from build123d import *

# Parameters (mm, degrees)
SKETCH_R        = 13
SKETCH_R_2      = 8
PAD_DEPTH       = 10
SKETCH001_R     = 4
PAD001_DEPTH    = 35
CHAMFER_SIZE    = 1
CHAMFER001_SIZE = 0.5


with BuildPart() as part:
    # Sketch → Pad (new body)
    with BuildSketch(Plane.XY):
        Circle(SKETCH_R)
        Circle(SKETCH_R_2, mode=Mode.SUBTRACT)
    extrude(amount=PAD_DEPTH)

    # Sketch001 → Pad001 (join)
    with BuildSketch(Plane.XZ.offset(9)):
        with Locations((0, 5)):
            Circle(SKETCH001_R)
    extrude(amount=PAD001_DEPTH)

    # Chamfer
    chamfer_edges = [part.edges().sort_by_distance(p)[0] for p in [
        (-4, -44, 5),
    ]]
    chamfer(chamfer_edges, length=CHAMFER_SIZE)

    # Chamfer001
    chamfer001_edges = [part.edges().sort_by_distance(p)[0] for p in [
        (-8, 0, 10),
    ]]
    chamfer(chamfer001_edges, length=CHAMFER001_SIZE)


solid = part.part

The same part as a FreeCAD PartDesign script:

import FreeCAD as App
import Part
import Sketcher

V = App.Vector
Q = App.Units.Quantity


def edges_at(feature, points):
    """Names of the edges that pass closest to the given points."""
    edges = feature.Shape.Edges
    near = lambda p: min(range(len(edges)), key=lambda i: edges[i].distToShape(Part.Vertex(*p))[0])
    return sorted({f"Edge{near(p) + 1}" for p in points})

doc = App.newDocument("Part")
body = doc.addObject("PartDesign::Body", "Body")

# Sketch on XY plane
sketch1 = doc.addObject("Sketcher::SketchObject", "Sketch")
body.addObject(sketch1)
sketch1.AttachmentSupport = (doc.XY_Plane, [""])
sketch1.MapMode = "FlatFace"
sketch1.addGeometry([
    Part.Circle(V(0, 0, 0), V(0, 0, 1), 13),
    Part.Circle(V(0, 0, 0), V(0, 0, 1), 8),
], False)
sketch1.addConstraint([
    Sketcher.Constraint("Coincident", 0, 3, -1, 1),
    Sketcher.Constraint("Coincident", 1, 3, -1, 1),
    Sketcher.Constraint("Diameter", 0, Q("26 mm")),
    Sketcher.Constraint("Diameter", 1, Q("16 mm")),
])
pad1 = doc.addObject("PartDesign::Pad", "Pad")
body.addObject(pad1)
pad1.Profile = sketch1
pad1.Length = 10

# Sketch on XZ plane
sketch2 = doc.addObject("Sketcher::SketchObject", "Sketch001")
body.addObject(sketch2)
sketch2.AttachmentSupport = (doc.XZ_Plane, [""])
sketch2.MapMode = "FlatFace"
sketch2.AttachmentOffset = App.Placement(V(0, 0, 9), App.Rotation())
sketch2.addGeometry(Part.Circle(V(0, 5, 0), V(0, 0, 1), 4), False)
sketch2.addConstraint([
    Sketcher.Constraint("PointOnObject", 0, 3, -2),
    Sketcher.Constraint("Diameter", 0, Q("8 mm")),
    Sketcher.Constraint("DistanceY", -1, 1, 0, 3, Q("5 mm")),
])
pad2 = doc.addObject("PartDesign::Pad", "Pad001")
body.addObject(pad2)
pad2.Profile = sketch2
pad2.Length = 35
doc.recompute()

chamfer = doc.addObject("PartDesign::Chamfer", "Chamfer")
body.addObject(chamfer)
chamfer.Base = (pad2, edges_at(pad2, [(-4, -44, 5)]))
chamfer.Size = 1
doc.recompute()

chamfer2 = doc.addObject("PartDesign::Chamfer", "Chamfer001")
body.addObject(chamfer2)
chamfer2.Base = (chamfer, edges_at(chamfer, [(-8, 0, 10)]))
chamfer2.Size = 0.5

doc.recompute()
